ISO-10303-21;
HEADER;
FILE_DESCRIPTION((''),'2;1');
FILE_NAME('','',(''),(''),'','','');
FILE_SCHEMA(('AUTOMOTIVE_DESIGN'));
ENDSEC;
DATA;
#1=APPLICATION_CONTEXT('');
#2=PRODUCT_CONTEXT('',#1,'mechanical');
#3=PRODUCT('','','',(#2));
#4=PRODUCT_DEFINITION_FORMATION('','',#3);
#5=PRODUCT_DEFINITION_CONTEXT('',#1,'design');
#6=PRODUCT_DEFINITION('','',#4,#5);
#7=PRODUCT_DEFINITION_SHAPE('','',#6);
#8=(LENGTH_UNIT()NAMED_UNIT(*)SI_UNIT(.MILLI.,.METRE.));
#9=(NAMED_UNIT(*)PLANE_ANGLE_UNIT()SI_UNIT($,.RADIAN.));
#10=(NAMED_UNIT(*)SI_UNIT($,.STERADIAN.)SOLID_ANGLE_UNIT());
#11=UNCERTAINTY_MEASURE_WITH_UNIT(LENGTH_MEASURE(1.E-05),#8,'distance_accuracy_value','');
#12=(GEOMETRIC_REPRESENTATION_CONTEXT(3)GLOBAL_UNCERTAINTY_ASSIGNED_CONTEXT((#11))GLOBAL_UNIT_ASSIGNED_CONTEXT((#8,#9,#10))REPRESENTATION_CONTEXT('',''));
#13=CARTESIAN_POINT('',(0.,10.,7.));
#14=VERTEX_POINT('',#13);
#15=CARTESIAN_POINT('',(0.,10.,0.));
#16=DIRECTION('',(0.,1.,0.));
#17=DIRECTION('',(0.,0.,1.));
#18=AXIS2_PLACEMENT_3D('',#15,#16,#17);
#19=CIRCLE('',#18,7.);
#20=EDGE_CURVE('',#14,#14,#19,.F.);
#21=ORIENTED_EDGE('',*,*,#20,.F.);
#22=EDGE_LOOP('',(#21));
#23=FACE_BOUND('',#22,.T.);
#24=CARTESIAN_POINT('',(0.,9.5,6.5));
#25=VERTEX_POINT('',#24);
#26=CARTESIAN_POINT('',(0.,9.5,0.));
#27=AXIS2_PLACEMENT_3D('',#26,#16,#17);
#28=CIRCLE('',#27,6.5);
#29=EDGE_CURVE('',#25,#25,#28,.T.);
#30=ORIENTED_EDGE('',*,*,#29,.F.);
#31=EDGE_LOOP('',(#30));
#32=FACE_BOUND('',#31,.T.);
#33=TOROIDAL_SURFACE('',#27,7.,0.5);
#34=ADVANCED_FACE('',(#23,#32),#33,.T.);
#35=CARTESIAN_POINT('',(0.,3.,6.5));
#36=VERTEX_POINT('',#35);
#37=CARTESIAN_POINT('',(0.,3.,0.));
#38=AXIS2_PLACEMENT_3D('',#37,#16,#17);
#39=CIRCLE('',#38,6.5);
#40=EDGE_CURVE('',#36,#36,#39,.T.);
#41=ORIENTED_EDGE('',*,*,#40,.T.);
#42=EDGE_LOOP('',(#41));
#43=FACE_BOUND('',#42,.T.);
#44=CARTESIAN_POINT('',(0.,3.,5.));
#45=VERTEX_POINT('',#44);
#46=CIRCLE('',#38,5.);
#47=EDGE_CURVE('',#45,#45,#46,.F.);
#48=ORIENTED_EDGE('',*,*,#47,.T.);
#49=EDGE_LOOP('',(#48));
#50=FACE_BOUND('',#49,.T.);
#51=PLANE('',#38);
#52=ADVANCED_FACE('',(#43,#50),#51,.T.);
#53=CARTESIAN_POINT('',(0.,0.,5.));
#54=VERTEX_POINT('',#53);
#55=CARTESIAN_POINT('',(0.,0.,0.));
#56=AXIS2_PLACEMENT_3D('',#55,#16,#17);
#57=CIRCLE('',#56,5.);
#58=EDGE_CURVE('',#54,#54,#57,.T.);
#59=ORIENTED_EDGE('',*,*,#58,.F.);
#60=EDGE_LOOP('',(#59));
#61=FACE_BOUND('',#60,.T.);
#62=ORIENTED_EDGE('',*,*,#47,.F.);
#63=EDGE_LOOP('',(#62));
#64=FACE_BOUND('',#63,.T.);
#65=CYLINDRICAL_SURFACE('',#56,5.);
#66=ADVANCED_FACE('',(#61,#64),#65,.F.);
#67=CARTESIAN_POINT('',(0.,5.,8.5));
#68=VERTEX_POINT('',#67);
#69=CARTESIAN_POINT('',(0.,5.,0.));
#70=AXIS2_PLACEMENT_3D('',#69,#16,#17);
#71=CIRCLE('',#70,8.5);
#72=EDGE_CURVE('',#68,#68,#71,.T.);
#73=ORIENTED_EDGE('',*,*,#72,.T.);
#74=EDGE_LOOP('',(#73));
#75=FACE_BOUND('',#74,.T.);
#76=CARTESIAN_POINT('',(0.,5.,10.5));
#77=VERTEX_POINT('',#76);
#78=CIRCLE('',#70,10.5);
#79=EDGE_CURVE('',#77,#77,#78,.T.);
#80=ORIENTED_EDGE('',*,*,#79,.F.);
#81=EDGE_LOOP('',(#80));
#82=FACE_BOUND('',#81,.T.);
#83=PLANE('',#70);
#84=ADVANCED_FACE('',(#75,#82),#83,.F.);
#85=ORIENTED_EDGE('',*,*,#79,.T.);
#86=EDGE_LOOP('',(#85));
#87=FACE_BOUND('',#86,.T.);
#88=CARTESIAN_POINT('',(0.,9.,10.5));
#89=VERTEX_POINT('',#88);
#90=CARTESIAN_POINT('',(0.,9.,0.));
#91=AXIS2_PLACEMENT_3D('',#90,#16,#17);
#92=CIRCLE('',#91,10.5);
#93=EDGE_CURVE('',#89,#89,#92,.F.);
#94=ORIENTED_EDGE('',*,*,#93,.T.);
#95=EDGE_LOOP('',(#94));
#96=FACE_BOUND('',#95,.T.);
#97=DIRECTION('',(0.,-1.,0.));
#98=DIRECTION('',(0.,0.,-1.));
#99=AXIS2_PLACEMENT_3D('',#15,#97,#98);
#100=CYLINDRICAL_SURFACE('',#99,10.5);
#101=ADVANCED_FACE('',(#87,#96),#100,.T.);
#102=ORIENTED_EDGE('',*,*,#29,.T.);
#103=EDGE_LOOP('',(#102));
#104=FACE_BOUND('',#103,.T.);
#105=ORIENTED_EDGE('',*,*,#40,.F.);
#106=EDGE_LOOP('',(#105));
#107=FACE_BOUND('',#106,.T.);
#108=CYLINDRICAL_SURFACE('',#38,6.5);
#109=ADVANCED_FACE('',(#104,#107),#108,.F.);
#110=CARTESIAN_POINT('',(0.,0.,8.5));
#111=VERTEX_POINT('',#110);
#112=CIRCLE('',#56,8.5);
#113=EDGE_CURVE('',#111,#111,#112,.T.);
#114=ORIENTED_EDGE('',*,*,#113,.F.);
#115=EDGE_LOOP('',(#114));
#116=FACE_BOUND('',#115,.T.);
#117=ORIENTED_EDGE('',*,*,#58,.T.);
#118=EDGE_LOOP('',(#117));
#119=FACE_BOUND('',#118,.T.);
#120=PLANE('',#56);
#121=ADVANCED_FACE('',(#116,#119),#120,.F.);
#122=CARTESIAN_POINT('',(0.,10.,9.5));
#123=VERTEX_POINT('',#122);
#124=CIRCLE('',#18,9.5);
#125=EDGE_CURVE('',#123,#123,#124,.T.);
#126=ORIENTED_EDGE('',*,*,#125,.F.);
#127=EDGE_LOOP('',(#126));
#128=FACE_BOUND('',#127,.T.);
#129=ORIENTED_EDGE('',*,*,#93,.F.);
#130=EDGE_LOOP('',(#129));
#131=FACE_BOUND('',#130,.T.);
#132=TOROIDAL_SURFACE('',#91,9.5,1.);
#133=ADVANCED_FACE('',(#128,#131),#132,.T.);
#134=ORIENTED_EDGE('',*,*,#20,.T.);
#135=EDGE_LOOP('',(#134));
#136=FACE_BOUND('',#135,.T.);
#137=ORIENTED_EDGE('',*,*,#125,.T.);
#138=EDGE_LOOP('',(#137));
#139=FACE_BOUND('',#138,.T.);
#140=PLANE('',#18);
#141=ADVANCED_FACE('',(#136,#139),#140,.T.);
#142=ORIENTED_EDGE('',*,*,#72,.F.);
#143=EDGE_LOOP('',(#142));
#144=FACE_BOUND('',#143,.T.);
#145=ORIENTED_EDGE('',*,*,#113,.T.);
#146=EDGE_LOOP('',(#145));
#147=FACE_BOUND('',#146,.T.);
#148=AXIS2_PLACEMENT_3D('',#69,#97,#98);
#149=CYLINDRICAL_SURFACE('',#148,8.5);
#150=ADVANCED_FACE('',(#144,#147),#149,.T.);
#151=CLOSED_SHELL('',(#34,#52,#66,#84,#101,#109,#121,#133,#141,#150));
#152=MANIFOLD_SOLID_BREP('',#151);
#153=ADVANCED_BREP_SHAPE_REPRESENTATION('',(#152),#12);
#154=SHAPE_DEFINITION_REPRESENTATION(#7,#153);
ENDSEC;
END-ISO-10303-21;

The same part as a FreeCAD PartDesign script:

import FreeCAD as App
import Part
import Sketcher

V = App.Vector
Q = App.Units.Quantity


def edges_at(feature, points):
    """Names of the edges that pass closest to the given points."""
    edges = feature.Shape.Edges
    near = lambda p: min(range(len(edges)), key=lambda i: edges[i].distToShape(Part.Vertex(*p))[0])
    return sorted({f"Edge{near(p) + 1}" for p in points})

doc = App.newDocument("Part")
params = doc.addObject("Spreadsheet::Sheet", "Params")
for row, (alias, value) in enumerate([
    ("sketch1_diameter", "17 mm"),
    ("pad1_length", "5 mm"),
    ("sketch2_diameter", "21 mm"),
    ("pad2_length", "5 mm"),
    ("sketch3_diameter", "10 mm"),
    ("sketch4_diameter", "13 mm"),
    ("pocket2_length", "7 mm"),
    ("fillet_radius", "1 mm"),
    ("fillet2_radius", "0.5 mm"),
], start=1):
    params.set(f"A{row}", alias)
    params.set(f"B{row}", "=" + value)
    params.setAlias(f"B{row}", alias)

body = doc.addObject("PartDesign::Body", "Body")

sketch1 = doc.addObject("Sketcher::SketchObject", "Sketch")
body.addObject(sketch1)
sketch1.AttachmentSupport = (doc.XZ_Plane, [""])
sketch1.MapMode = "FlatFace"
sketch1.addGeometry(Part.Circle(V(0, 0, 0), V(0, 0, 1), 8), False)
sketch1.addConstraint(Sketcher.Constraint("Coincident", 0, 3, -1, 1))
sketch1.addConstraint(Sketcher.Constraint("Diameter", 0, Q("17 mm")))
sketch1.setExpression("Constraints[1]", "Params.sketch1_diameter")
pad1 = doc.addObject("PartDesign::Pad", "Pad")
body.addObject(pad1)
pad1.Profile = sketch1
pad1.setExpression("Length", "Params.pad1_length")
pad1.Reversed = True

sketch2 = doc.addObject("Sketcher::SketchObject", "Sketch001")
body.addObject(sketch2)
sketch2.AttachmentSupport = (doc.XZ_Plane, [""])
sketch2.MapMode = "FlatFace"
sketch2.AttachmentOffset = App.Placement(V(0, 0, -5), App.Rotation())
sketch2.addGeometry(Part.Circle(V(0, 0, 0), V(0, 0, 1), 10), False)
sketch2.addConstraint(Sketcher.Constraint("Coincident", 0, 3, -1, 1))
sketch2.addConstraint(Sketcher.Constraint("Diameter", 0, Q("21 mm")))
sketch2.setExpression("Constraints[1]", "Params.sketch2_diameter")
pad2 = doc.addObject("PartDesign::Pad", "Pad001")
body.addObject(pad2)
pad2.Profile = sketch2
pad2.setExpression("Length", "Params.pad2_length")
pad2.Reversed = True

sketch3 = doc.addObject("Sketcher::SketchObject", "Sketch002")
body.addObject(sketch3)
sketch3.AttachmentSupport = (doc.XZ_Plane, [""])
sketch3.MapMode = "FlatFace"
sketch3.AttachmentOffset = App.Placement(V(0, 0, -10), App.Rotation())
sketch3.addGeometry(Part.Circle(V(0, 0, 0), V(0, 0, 1), 5), False)
sketch3.addConstraint(Sketcher.Constraint("Coincident", 0, 3, -1, 1))
sketch3.addConstraint(Sketcher.Constraint("Diameter", 0, Q("10 mm")))
sketch3.setExpression("Constraints[1]", "Params.sketch3_diameter")
pocket1 = doc.addObject("PartDesign::Pocket", "Pocket")
body.addObject(pocket1)
pocket1.Profile = sketch3
pocket1.Type = "ThroughAll"
pocket1.Reversed = True

sketch4 = doc.addObject("Sketcher::SketchObject", "Sketch003")
body.addObject(sketch4)
sketch4.AttachmentSupport = (doc.XZ_Plane, [""])
sketch4.MapMode = "FlatFace"
sketch4.AttachmentOffset = App.Placement(V(0, 0, -10), App.Rotation())
sketch4.addGeometry(Part.Circle(V(0, 0, 0), V(0, 0, 1), 6), False)
sketch4.addConstraint(Sketcher.Constraint("Coincident", 0, 3, -1, 1))
sketch4.addConstraint(Sketcher.Constraint("Diameter", 0, Q("13 mm")))
sketch4.setExpression("Constraints[1]", "Params.sketch4_diameter")
pocket2 = doc.addObject("PartDesign::Pocket", "Pocket001")
body.addObject(pocket2)
pocket2.Profile = sketch4
pocket2.setExpression("Length", "Params.pocket2_length")
pocket2.Reversed = True
doc.recompute()

fillet = doc.addObject("PartDesign::Fillet", "Fillet")
body.addObject(fillet)
fillet.Base = (pocket2, edges_at(pocket2, [(0, 10, -10.5)]))
fillet.setExpression("Radius", "Params.fillet_radius")
doc.recompute()

fillet2 = doc.addObject("PartDesign::Fillet", "Fillet001")
body.addObject(fillet2)
fillet2.Base = (fillet, edges_at(fillet, [(0, 10, -6.5)]))
fillet2.setExpression("Radius", "Params.fillet2_radius")

doc.recompute()
